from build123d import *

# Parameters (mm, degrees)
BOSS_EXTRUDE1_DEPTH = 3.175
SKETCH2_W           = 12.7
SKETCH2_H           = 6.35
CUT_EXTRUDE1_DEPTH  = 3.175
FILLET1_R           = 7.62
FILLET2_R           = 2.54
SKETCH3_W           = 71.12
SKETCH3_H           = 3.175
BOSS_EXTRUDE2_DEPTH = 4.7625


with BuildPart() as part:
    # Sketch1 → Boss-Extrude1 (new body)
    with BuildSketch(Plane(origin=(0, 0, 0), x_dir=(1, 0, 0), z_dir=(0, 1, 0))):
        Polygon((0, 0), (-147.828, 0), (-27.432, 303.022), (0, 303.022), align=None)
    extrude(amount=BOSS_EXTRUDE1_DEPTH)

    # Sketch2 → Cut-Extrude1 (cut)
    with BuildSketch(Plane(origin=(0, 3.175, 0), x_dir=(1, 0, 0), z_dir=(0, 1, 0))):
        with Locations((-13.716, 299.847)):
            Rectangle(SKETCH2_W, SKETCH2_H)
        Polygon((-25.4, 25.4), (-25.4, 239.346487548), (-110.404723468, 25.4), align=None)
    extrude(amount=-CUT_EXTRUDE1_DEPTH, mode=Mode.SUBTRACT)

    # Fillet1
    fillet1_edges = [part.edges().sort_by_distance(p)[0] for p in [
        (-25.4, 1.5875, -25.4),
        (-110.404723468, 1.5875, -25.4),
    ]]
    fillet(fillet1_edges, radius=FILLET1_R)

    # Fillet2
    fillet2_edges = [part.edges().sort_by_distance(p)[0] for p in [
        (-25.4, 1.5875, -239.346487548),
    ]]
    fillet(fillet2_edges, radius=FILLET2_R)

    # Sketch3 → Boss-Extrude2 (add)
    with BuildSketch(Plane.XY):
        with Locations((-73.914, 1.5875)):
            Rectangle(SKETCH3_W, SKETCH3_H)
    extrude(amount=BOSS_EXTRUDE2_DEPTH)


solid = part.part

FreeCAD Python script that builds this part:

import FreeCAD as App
import Part
import Sketcher
Q = App.Units.Quantity


def edges_at(feature, points):
    """Names of the edges that pass closest to the given points."""
    edges = feature.Shape.Edges
    near = lambda p: min(range(len(edges)), key=lambda i: edges[i].distToShape(Part.Vertex(*p))[0])
    return sorted({f"Edge{near(p) + 1}" for p in points})

doc = App.newDocument("Part")
body = doc.addObject("PartDesign::Body", "Body")

sketch1 = body.newObject("Sketcher::SketchObject", "Sketch")
sketch1.AttachmentSupport = (doc.getObject("XZ_Plane"), [""])
sketch1.MapMode = "FlatFace"
sketch1.addGeometry(Part.LineSegment(App.Vector(-147.828, 0, 0), App.Vector(0, 0, 0)), False)
sketch1.addGeometry(Part.LineSegment(App.Vector(0, 0, 0), App.Vector(0, -303.022, 0)), False)
sketch1.addGeometry(Part.LineSegment(App.Vector(0, -303.022, 0), App.Vector(-27.432, -303.022, 0)), False)
sketch1.addGeometry(Part.LineSegment(App.Vector(-27.432, -303.022, 0), App.Vector(-147.828, 0, 0)), False)
sketch1.addConstraint(Sketcher.Constraint("Coincident", 0, 2, 1, 1))
sketch1.addConstraint(Sketcher.Constraint("Coincident", 1, 2, 2, 1))
sketch1.addConstraint(Sketcher.Constraint("Coincident", 2, 2, 3, 1))
sketch1.addConstraint(Sketcher.Constraint("Coincident", 3, 2, 0, 1))
sketch1.addConstraint(Sketcher.Constraint("Horizontal", 0))
sketch1.addConstraint(Sketcher.Constraint("Vertical", 1))
sketch1.addConstraint(Sketcher.Constraint("Horizontal", 2))
sketch1.addConstraint(Sketcher.Constraint("Coincident", 0, 2, -1, 1))
sketch1.addConstraint(Sketcher.Constraint("DistanceX", 0, 1, 0, 2, Q("5.82 in")))
sketch1.addConstraint(Sketcher.Constraint("DistanceX", 2, 2, 2, 1, Q("1.08 in")))
sketch1.addConstraint(Sketcher.Constraint("DistanceY", 1, 2, 1, 1, Q("11.93 in")))
pad1 = body.newObject("PartDesign::Pad", "Pad")
pad1.Profile = sketch1
pad1.Length = Q("0.125 in")
pad1.Reversed = True

sketch2 = body.newObject("Sketcher::SketchObject", "Sketch001")
sketch2.AttachmentSupport = (doc.getObject("XZ_Plane"), [""])
sketch2.MapMode = "FlatFace"
sketch2.AttachmentOffset = App.Placement(App.Vector(0, 0, -0.125 * 25.4), App.Rotation())
sketch2.addGeometry(Part.LineSegment(App.Vector(-20.066, -303.022, 0), App.Vector(-20.066, -296.672, 0)), False)
sketch2.addGeometry(Part.LineSegment(App.Vector(-20.066, -296.672, 0), App.Vector(-7.366, -296.672, 0)), False)
sketch2.addGeometry(Part.LineSegment(App.Vector(-7.366, -296.672, 0), App.Vector(-7.366, -303.022, 0)), False)
sketch2.addGeometry(Part.LineSegment(App.Vector(-7.366, -303.022, 0), App.Vector(-20.066, -303.022, 0)), False)
sketch2.addGeometry(Part.LineSegment(App.Vector(-25.4, -25.4, 0), App.Vector(-25.4, -239.346488, 0)), False)
sketch2.addGeometry(Part.LineSegment(App.Vector(-25.4, -239.346488, 0), App.Vector(-110.404723, -25.4, 0)), False)
sketch2.addGeometry(Part.LineSegment(App.Vector(-110.404723, -25.4, 0), App.Vector(-25.4, -25.4, 0)), False)
sketch2.addConstraint(Sketcher.Constraint("Coincident", 0, 2, 1, 1))
sketch2.addConstraint(Sketcher.Constraint("Coincident", 1, 2, 2, 1))
sketch2.addConstraint(Sketcher.Constraint("Coincident", 2, 2, 3, 1))
sketch2.addConstraint(Sketcher.Constraint("Coincident", 3, 2, 0, 1))
sketch2.addConstraint(Sketcher.Constraint("Coincident", 4, 2, 5, 1))
sketch2.addConstraint(Sketcher.Constraint("Coincident", 5, 2, 6, 1))
sketch2.addConstraint(Sketcher.Constraint("Coincident", 6, 2, 4, 1))
sketch2.addConstraint(Sketcher.Constraint("Vertical", 0))
sketch2.addConstraint(Sketcher.Constraint("Horizontal", 1))
sketch2.addConstraint(Sketcher.Constraint("Vertical", 2))
sketch2.addConstraint(Sketcher.Constraint("Horizontal", 3))
sketch2.addConstraint(Sketcher.Constraint("Vertical", 4))
sketch2.addConstraint(Sketcher.Constraint("Horizontal", 6))
sketch2.addConstraint(Sketcher.Constraint("DistanceX", 1, 1, 1, 2, Q("0.5 in")))
sketch2.addConstraint(Sketcher.Constraint("DistanceX", 4, 2, -1, 1, Q("1 in")))
sketch2.addConstraint(Sketcher.Constraint("DistanceY", 5, 2, -1, 1, Q("1 in")))
sketch2.addConstraint(Sketcher.Constraint("DistanceY", 0, 1, 0, 2, Q("0.25 in")))
sketch2.addConstraint(Sketcher.Constraint("DistanceX", 0, 2, -1, 1, Q("0.79 in")))
sketch2.addConstraint(Sketcher.Constraint("DistanceY", 0, 2, -1, 1, Q("11.68 in")))
sketch2.addConstraint(Sketcher.Constraint("DistanceX", 6, 1, 6, 2, Q("85.004723 mm")))
sketch2.addConstraint(Sketcher.Constraint("DistanceY", 4, 2, 4, 1, Q("213.946488 mm")))
pocket1 = body.newObject("PartDesign::Pocket", "Pocket")
pocket1.Profile = sketch2
pocket1.Length = Q("0.125 in")
pocket1.Reversed = True
doc.recompute()

fillet = body.newObject("PartDesign::Fillet", "Fillet")
fillet.Base = (pocket1, edges_at(pocket1, [(-25.4, 1.587, -25.4), (-110.405, 1.587, -25.4)]))
fillet.Radius = Q("0.3 in")
doc.recompute()

fillet2 = body.newObject("PartDesign::Fillet", "Fillet001")
fillet2.Base = (fillet, edges_at(fillet, [(-25.4, 1.587, -239.346)]))
fillet2.Radius = Q("0.1 in")

sketch3 = body.newObject("Sketcher::SketchObject", "Sketch002")
sketch3.AttachmentSupport = (doc.getObject("XY_Plane"), [""])
sketch3.MapMode = "FlatFace"
sketch3.addGeometry(Part.LineSegment(App.Vector(-109.474, 3.175, 0), App.Vector(-109.474, 0, 0)), False)
sketch3.addGeometry(Part.LineSegment(App.Vector(-109.474, 0, 0), App.Vector(-38.354, 0, 0)), False)
sketch3.addGeometry(Part.LineSegment(App.Vector(-38.354, 0, 0), App.Vector(-38.354, 3.175, 0)), False)
sketch3.addGeometry(Part.LineSegment(App.Vector(-38.354, 3.175, 0), App.Vector(-109.474, 3.175, 0)), False)
sketch3.addConstraint(Sketcher.Constraint("Coincident", 0, 2, 1, 1))
sketch3.addConstraint(Sketcher.Constraint("Coincident", 1, 2, 2, 1))
sketch3.addConstraint(Sketcher.Constraint("Coincident", 2, 2, 3, 1))
sketch3.addConstraint(Sketcher.Constraint("Coincident", 3, 2, 0, 1))
sketch3.addConstraint(Sketcher.Constraint("Vertical", 0))
sketch3.addConstraint(Sketcher.Constraint("Horizontal", 1))
sketch3.addConstraint(Sketcher.Constraint("Vertical", 2))
sketch3.addConstraint(Sketcher.Constraint("Horizontal", 3))
sketch3.addConstraint(Sketcher.Constraint("PointOnObject", 0, 2, -1))
sketch3.addConstraint(Sketcher.Constraint("DistanceX", 1, 1, 1, 2, Q("2.8 in")))
sketch3.addConstraint(Sketcher.Constraint("DistanceY", 0, 2, 0, 1, Q("0.125 in")))
sketch3.addConstraint(Sketcher.Constraint("DistanceX", 0, 2, -1, 1, Q("4.31 in")))
pad2 = body.newObject("PartDesign::Pad", "Pad001")
pad2.Profile = sketch3
pad2.Length = Q("0.1875 in")

doc.recompute()
